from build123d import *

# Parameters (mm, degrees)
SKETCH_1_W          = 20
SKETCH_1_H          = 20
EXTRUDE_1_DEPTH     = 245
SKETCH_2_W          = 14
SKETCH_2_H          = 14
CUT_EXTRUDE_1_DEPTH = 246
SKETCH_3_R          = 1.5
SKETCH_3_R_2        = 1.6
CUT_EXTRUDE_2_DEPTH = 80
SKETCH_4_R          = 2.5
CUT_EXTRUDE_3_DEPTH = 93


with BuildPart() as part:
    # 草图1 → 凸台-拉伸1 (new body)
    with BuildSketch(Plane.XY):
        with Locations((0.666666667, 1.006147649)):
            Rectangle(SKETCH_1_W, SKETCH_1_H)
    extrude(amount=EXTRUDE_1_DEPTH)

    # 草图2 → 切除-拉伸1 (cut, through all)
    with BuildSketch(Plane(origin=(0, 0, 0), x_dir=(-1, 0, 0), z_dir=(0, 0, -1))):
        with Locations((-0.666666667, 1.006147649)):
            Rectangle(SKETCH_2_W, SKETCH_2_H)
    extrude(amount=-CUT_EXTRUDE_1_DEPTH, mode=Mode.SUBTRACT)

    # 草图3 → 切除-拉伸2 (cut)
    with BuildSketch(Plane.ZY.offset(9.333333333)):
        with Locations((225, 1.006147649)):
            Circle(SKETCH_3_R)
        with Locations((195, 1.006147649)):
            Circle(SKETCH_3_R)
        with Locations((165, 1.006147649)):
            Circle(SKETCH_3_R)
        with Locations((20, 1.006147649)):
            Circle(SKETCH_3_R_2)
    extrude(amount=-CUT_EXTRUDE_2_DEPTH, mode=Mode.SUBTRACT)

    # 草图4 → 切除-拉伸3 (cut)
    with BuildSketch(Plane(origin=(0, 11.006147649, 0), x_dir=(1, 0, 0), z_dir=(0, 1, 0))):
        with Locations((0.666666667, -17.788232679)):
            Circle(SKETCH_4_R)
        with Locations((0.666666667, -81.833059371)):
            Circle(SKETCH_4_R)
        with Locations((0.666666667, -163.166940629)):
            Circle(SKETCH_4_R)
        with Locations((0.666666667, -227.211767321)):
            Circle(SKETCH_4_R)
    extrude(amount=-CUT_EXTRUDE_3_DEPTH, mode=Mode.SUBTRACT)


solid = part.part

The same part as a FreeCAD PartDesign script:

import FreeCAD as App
import Part
import Sketcher
Q = App.Units.Quantity

doc = App.newDocument("Part")
body = doc.addObject("PartDesign::Body", "Body")

sketch1 = body.newObject("Sketcher::SketchObject", "Sketch")
sketch1.AttachmentSupport = (doc.getObject("XY_Plane"), [""])
sketch1.MapMode = "FlatFace"
sketch1.addGeometry([
    Part.LineSegment(App.Vector(-9, 11, 0), App.Vector(-9, -9, 0)),
    Part.LineSegment(App.Vector(-9, -9, 0), App.Vector(11, -9, 0)),
    Part.LineSegment(App.Vector(11, -9, 0), App.Vector(11, 11, 0)),
    Part.LineSegment(App.Vector(11, 11, 0), App.Vector(-9, 11, 0)),
], False)
sketch1.addConstraint([
    Sketcher.Constraint("Coincident", 0, 2, 1, 1),
    Sketcher.Constraint("Coincident", 1, 2, 2, 1),
    Sketcher.Constraint("Coincident", 2, 2, 3, 1),
    Sketcher.Constraint("Coincident", 3, 2, 0, 1),
    Sketcher.Constraint("Vertical", 0),
    Sketcher.Constraint("Horizontal", 1),
    Sketcher.Constraint("Vertical", 2),
    Sketcher.Constraint("Horizontal", 3),
    Sketcher.Constraint("Equal", 3, 0),
    Sketcher.Constraint("DistanceX", 1, 1, 1, 2, Q("20 mm")),
    Sketcher.Constraint("DistanceX", 0, 2, -1, 1, Q("9.333333 mm")),
    Sketcher.Constraint("DistanceY", 0, 2, -1, 1, Q("8.993852 mm")),
])
pad1 = body.newObject("PartDesign::Pad", "Pad")
pad1.Profile = sketch1
pad1.Length = 245

sketch2 = body.newObject("Sketcher::SketchObject", "Sketch001")
sketch2.AttachmentSupport = (doc.getObject("XY_Plane"), [""])
sketch2.MapMode = "FlatFace"
sketch2.addGeometry([
    Part.LineSegment(App.Vector(8, 8, 0), App.Vector(8, -6, 0)),
    Part.LineSegment(App.Vector(8, -6, 0), App.Vector(-6, -6, 0)),
    Part.LineSegment(App.Vector(-6, -6, 0), App.Vector(-6, 8, 0)),
    Part.LineSegment(App.Vector(-6, 8, 0), App.Vector(8, 8, 0)),
], False)
sketch2.addConstraint([
    Sketcher.Constraint("Coincident", 0, 2, 1, 1),
    Sketcher.Constraint("Coincident", 1, 2, 2, 1),
    Sketcher.Constraint("Coincident", 2, 2, 3, 1),
    Sketcher.Constraint("Coincident", 3, 2, 0, 1),
    Sketcher.Constraint("Vertical", 0),
    Sketcher.Constraint("Horizontal", 1),
    Sketcher.Constraint("Vertical", 2),
    Sketcher.Constraint("Horizontal", 3),
    Sketcher.Constraint("Equal", 3, 0),
    Sketcher.Constraint("DistanceX", 1, 2, 1, 1, Q("14 mm")),
    Sketcher.Constraint("DistanceX", -1, 1, 0, 2, Q("7.666667 mm")),
    Sketcher.Constraint("DistanceY", 0, 2, -1, 1, Q("5.993852 mm")),
])
pocket1 = body.newObject("PartDesign::Pocket", "Pocket")
pocket1.Profile = sketch2
pocket1.Type = "ThroughAll"
pocket1.Reversed = True

sketch3 = body.newObject("Sketcher::SketchObject", "Sketch002")
sketch3.AttachmentSupport = (doc.getObject("YZ_Plane"), [""])
sketch3.MapMode = "FlatFace"
sketch3.AttachmentOffset = App.Placement(App.Vector(0, 0, -9.333333), App.Rotation())
sketch3.addGeometry([
    Part.Circle(App.Vector(1, 225, 0), App.Vector(0, 0, 1), 1.5),
    Part.Circle(App.Vector(1, 195, 0), App.Vector(0, 0, 1), 1.5),
    Part.Circle(App.Vector(1, 165, 0), App.Vector(0, 0, 1), 1.5),
    Part.Circle(App.Vector(1, 20, 0), App.Vector(0, 0, 1), 1.6),
], False)
sketch3.addConstraint([
    Sketcher.Constraint("Equal", 0, 1),
    Sketcher.Constraint("Equal", 1, 2),
    Sketcher.Constraint("Vertical", 0, 3, 1, 3),
    Sketcher.Constraint("Vertical", 1, 3, 2, 3),
    Sketcher.Constraint("Vertical", 2, 3, 3, 3),
    Sketcher.Constraint("Diameter", 0, Q("3 mm")),
    Sketcher.Constraint("Diameter", 3, Q("3.2 mm")),
    Sketcher.Constraint("DistanceY", -1, 1, 0, 3, Q("225 mm")),
    Sketcher.Constraint("DistanceY", -1, 1, 1, 3, Q("195 mm")),
    Sketcher.Constraint("DistanceY", -1, 1, 2, 3, Q("165 mm")),
    Sketcher.Constraint("DistanceY", -1, 1, 3, 3, Q("20 mm")),
    Sketcher.Constraint("DistanceX", -1, 1, 0, 3, Q("1.006148 mm")),
])
pocket2 = body.newObject("PartDesign::Pocket", "Pocket001")
pocket2.Profile = sketch3
pocket2.Length = 80
pocket2.Reversed = True

sketch4 = body.newObject("Sketcher::SketchObject", "Sketch003")
sketch4.AttachmentSupport = (doc.getObject("XZ_Plane"), [""])
sketch4.MapMode = "FlatFace"
sketch4.AttachmentOffset = App.Placement(App.Vector(0, 0, -11.006148), App.Rotation())
sketch4.addGeometry([
    Part.Circle(App.Vector(0.7, 17.8, 0), App.Vector(0, 0, 1), 2.5),
    Part.Circle(App.Vector(0.7, 81.8, 0), App.Vector(0, 0, 1), 2.5),
    Part.Circle(App.Vector(0.7, 163.2, 0), App.Vector(0, 0, 1), 2.5),
    Part.Circle(App.Vector(0.7, 227.2, 0), App.Vector(0, 0, 1), 2.5),
], False)
sketch4.addConstraint([
    Sketcher.Constraint("Equal", 0, 1),
    Sketcher.Constraint("Equal", 1, 2),
    Sketcher.Constraint("Equal", 2, 3),
    Sketcher.Constraint("Vertical", 0, 3, 1, 3),
    Sketcher.Constraint("Vertical", 1, 3, 2, 3),
    Sketcher.Constraint("Vertical", 2, 3, 3, 3),
    Sketcher.Constraint("Diameter", 0, Q("5 mm")),
    Sketcher.Constraint("DistanceY", -1, 1, 1, 3, Q("81.833059 mm")),
    Sketcher.Constraint("DistanceY", -1, 1, 2, 3, Q("163.166941 mm")),
    Sketcher.Constraint("DistanceX", -1, 1, 0, 3, Q("0.666667 mm")),
    Sketcher.Constraint("DistanceY", -1, 1, 0, 3, Q("17.788233 mm")),
    Sketcher.Constraint("DistanceY", -1, 1, 3, 3, Q("227.211767 mm")),
])
pocket3 = body.newObject("PartDesign::Pocket", "Pocket002")
pocket3.Profile = sketch4
pocket3.Length = 93
pocket3.Reversed = True

doc.recompute()
